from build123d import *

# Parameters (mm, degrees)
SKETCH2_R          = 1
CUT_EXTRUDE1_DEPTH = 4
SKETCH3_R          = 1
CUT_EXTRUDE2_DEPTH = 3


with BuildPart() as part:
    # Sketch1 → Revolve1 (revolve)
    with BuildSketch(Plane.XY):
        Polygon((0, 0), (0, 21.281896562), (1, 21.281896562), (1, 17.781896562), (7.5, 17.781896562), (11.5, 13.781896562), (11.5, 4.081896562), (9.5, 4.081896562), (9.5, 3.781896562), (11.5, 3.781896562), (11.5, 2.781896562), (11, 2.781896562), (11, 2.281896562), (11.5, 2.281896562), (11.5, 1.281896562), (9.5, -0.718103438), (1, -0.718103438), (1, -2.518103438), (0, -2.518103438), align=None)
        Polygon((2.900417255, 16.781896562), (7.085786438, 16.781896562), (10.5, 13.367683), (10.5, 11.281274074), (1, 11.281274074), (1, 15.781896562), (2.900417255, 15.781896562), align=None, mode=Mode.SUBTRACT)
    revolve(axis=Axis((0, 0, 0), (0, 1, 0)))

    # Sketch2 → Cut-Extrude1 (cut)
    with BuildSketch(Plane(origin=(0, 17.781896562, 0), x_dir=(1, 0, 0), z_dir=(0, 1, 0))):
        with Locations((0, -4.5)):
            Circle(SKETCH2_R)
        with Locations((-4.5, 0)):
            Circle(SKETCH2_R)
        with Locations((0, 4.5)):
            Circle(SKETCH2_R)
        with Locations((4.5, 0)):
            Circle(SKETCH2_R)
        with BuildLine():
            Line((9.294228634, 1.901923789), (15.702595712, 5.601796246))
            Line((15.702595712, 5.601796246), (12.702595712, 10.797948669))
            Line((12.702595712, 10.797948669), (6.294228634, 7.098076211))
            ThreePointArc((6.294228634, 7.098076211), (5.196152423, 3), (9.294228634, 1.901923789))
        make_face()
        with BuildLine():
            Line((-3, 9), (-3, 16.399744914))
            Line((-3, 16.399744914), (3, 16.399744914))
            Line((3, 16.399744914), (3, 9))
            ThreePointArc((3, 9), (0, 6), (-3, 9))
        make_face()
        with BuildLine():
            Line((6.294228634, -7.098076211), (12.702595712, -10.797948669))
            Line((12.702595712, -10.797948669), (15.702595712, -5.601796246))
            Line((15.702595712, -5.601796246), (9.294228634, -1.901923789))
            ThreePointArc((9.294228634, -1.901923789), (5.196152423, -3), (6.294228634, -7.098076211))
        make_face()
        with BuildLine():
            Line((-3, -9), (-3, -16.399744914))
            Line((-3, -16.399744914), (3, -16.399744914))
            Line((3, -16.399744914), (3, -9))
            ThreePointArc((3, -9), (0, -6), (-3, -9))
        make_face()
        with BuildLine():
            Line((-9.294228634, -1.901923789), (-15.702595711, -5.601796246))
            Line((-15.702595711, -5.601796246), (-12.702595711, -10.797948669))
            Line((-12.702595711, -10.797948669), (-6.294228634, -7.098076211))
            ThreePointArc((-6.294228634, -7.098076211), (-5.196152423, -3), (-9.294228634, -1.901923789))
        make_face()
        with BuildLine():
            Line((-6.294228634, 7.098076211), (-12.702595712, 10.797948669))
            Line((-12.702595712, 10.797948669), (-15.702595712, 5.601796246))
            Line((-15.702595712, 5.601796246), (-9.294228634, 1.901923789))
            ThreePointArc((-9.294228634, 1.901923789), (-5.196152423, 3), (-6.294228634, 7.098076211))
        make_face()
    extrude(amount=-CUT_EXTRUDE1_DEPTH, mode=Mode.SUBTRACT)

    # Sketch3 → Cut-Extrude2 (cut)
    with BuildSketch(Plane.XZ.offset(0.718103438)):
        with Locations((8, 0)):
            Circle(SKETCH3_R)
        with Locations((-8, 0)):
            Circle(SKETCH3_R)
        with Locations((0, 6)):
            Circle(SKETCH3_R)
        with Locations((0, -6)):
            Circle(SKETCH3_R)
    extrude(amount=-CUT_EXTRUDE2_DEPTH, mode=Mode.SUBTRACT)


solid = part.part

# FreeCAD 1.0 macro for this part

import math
import FreeCAD as App
import Part
import Sketcher

V = App.Vector
Q = App.Units.Quantity

doc = App.newDocument("Part")
params = doc.addObject("Spreadsheet::Sheet", "Params")
for row, (alias, value) in enumerate([
    ("sketch1_width", "1 mm"),
    ("sketch1_width2", "2 mm"),
    ("sketch1_width3", "8.5 mm"),
    ("sketch1_width4", "0.5 mm"),
    ("sketch1_width5", "6.5 mm"),
    ("revolution_angle", "360 deg"),
    ("sketch2_diameter", "2 mm"),
    ("sketch2_radius", "3 mm"),
    ("pocket1_length", "4 mm"),
    ("sketch3_diameter", "2 mm"),
    ("pocket2_length", "3 mm"),
], start=1):
    params.set(f"A{row}", alias)
    params.set(f"B{row}", "=" + value)
    params.setAlias(f"B{row}", alias)

body = doc.addObject("PartDesign::Body", "Body")

sketch1 = body.newObject("Sketcher::SketchObject", "Sketch")
sketch1.AttachmentSupport = (doc.getObject("XY_Plane"), [""])
sketch1.MapMode = "FlatFace"
sketch1.addGeometry(Part.LineSegment(V(0, 21.28, 0), V(0, -2.52, 0)), False)
sketch1.addGeometry(Part.LineSegment(V(0, -2.52, 0), V(1, -2.52, 0)), False)
sketch1.addGeometry(Part.LineSegment(V(1, -2.52, 0), V(1, -0.72, 0)), False)
sketch1.addGeometry(Part.LineSegment(V(1, -0.72, 0), V(9.5, -0.72, 0)), False)
sketch1.addGeometry(Part.LineSegment(V(9.5, -0.72, 0), V(11.5, 1.28, 0)), False)
sketch1.addGeometry(Part.LineSegment(V(11.5, 1.28, 0), V(11.5, 2.28, 0)), False)
sketch1.addGeometry(Part.LineSegment(V(11.5, 2.28, 0), V(11, 2.28, 0)), False)
sketch1.addGeometry(Part.LineSegment(V(11, 2.28, 0), V(11, 2.78, 0)), False)
sketch1.addGeometry(Part.LineSegment(V(11, 2.78, 0), V(11.5, 2.78, 0)), False)
sketch1.addGeometry(Part.LineSegment(V(11.5, 2.78, 0), V(11.5, 3.78, 0)), False)
sketch1.addGeometry(Part.LineSegment(V(11.5, 3.78, 0), V(9.5, 3.78, 0)), False)
sketch1.addGeometry(Part.LineSegment(V(9.5, 3.78, 0), V(9.5, 4.08, 0)), False)
sketch1.addGeometry(Part.LineSegment(V(9.5, 4.08, 0), V(11.5, 4.08, 0)), False)
sketch1.addGeometry(Part.LineSegment(V(11.5, 4.08, 0), V(11.5, 13.78, 0)), False)
sketch1.addGeometry(Part.LineSegment(V(11.5, 13.78, 0), V(7.5, 17.78, 0)), False)
sketch1.addGeometry(Part.LineSegment(V(7.5, 17.78, 0), V(1, 17.78, 0)), False)
sketch1.addGeometry(Part.LineSegment(V(1, 17.78, 0), V(1, 21.28, 0)), False)
sketch1.addGeometry(Part.LineSegment(V(1, 21.28, 0), V(0, 21.28, 0)), False)
sketch1.addGeometry(Part.LineSegment(V(2.9, 16.78, 0), V(7.09, 16.78, 0)), False)
sketch1.addGeometry(Part.LineSegment(V(7.09, 16.78, 0), V(10.5, 13.37, 0)), False)
sketch1.addGeometry(Part.LineSegment(V(10.5, 13.37, 0), V(10.5, 11.28, 0)), False)
sketch1.addGeometry(Part.LineSegment(V(10.5, 11.28, 0), V(1, 11.28, 0)), False)
sketch1.addGeometry(Part.LineSegment(V(1, 11.28, 0), V(1, 15.78, 0)), False)
sketch1.addGeometry(Part.LineSegment(V(1, 15.78, 0), V(2.9, 15.78, 0)), False)
sketch1.addGeometry(Part.LineSegment(V(2.9, 15.78, 0), V(2.9, 16.78, 0)), False)
sketch1.addConstraint(Sketcher.Constraint("Coincident", 0, 2, 1, 1))
sketch1.addConstraint(Sketcher.Constraint("Coincident", 1, 2, 2, 1))
sketch1.addConstraint(Sketcher.Constraint("Coincident", 2, 2, 3, 1))
sketch1.addConstraint(Sketcher.Constraint("Coincident", 3, 2, 4, 1))
sketch1.addConstraint(Sketcher.Constraint("Coincident", 4, 2, 5, 1))
sketch1.addConstraint(Sketcher.Constraint("Coincident", 5, 2, 6, 1))
sketch1.addConstraint(Sketcher.Constraint("Coincident", 6, 2, 7, 1))
sketch1.addConstraint(Sketcher.Constraint("Coincident", 7, 2, 8, 1))
sketch1.addConstraint(Sketcher.Constraint("Coincident", 8, 2, 9, 1))
sketch1.addConstraint(Sketcher.Constraint("Coincident", 9, 2, 10, 1))
sketch1.addConstraint(Sketcher.Constraint("Coincident", 10, 2, 11, 1))
sketch1.addConstraint(Sketcher.Constraint("Coincident", 11, 2, 12, 1))
sketch1.addConstraint(Sketcher.Constraint("Coincident", 12, 2, 13, 1))
sketch1.addConstraint(Sketcher.Constraint("Coincident", 13, 2, 14, 1))
sketch1.addConstraint(Sketcher.Constraint("Coincident", 14, 2, 15, 1))
sketch1.addConstraint(Sketcher.Constraint("Coincident", 15, 2, 16, 1))
sketch1.addConstraint(Sketcher.Constraint("Coincident", 16, 2, 17, 1))
sketch1.addConstraint(Sketcher.Constraint("Coincident", 17, 2, 0, 1))
sketch1.addConstraint(Sketcher.Constraint("Coincident", 18, 2, 19, 1))
sketch1.addConstraint(Sketcher.Constraint("Coincident", 19, 2, 20, 1))
sketch1.addConstraint(Sketcher.Constraint("Coincident", 20, 2, 21, 1))
sketch1.addConstraint(Sketcher.Constraint("Coincident", 21, 2, 22, 1))
sketch1.addConstraint(Sketcher.Constraint("Coincident", 22, 2, 23, 1))
sketch1.addConstraint(Sketcher.Constraint("Coincident", 23, 2, 24, 1))
sketch1.addConstraint(Sketcher.Constraint("Coincident", 24, 2, 18, 1))
sketch1.addConstraint(Sketcher.Constraint("Vertical", 0))
sketch1.addConstraint(Sketcher.Constraint("Horizontal", 1))
sketch1.addConstraint(Sketcher.Constraint("Vertical", 2))
sketch1.addConstraint(Sketcher.Constraint("Horizontal", 3))
sketch1.addConstraint(Sketcher.Constraint("Vertical", 5))
sketch1.addConstraint(Sketcher.Constraint("Horizontal", 6))
sketch1.addConstraint(Sketcher.Constraint("Vertical", 7))
sketch1.addConstraint(Sketcher.Constraint("Horizontal", 8))
sketch1.addConstraint(Sketcher.Constraint("Vertical", 9))
sketch1.addConstraint(Sketcher.Constraint("Horizontal", 10))
sketch1.addConstraint(Sketcher.Constraint("Vertical", 11))
sketch1.addConstraint(Sketcher.Constraint("Horizontal", 12))
sketch1.addConstraint(Sketcher.Constraint("Vertical", 13))
sketch1.addConstraint(Sketcher.Constraint("Horizontal", 15))
sketch1.addConstraint(Sketcher.Constraint("Vertical", 16))
sketch1.addConstraint(Sketcher.Constraint("Horizontal", 17))
sketch1.addConstraint(Sketcher.Constraint("Horizontal", 18))
sketch1.addConstraint(Sketcher.Constraint("Vertical", 20))
sketch1.addConstraint(Sketcher.Constraint("Horizontal", 21))
sketch1.addConstraint(Sketcher.Constraint("Vertical", 22))
sketch1.addConstraint(Sketcher.Constraint("Horizontal", 23))
sketch1.addConstraint(Sketcher.Constraint("Vertical", 24))
sketch1.addConstraint(Sketcher.Constraint("PointOnObject", 0, 2, -2))
sketch1.addConstraint(Sketcher.Constraint("Perpendicular", 4, 14))
sketch1.addConstraint(Sketcher.Constraint("Parallel", 14, 19))
sketch1.addConstraint(Sketcher.Constraint("Vertical", 5, 2, 8, 2))
sketch1.addConstraint(Sketcher.Constraint("Vertical", 3, 2, 10, 2))
sketch1.addConstraint(Sketcher.Constraint("Vertical", 9, 2, 12, 2))
sketch1.addConstraint(Sketcher.Constraint("Vertical", 2, 2, 15, 2))
sketch1.addConstraint(Sketcher.Constraint("Vertical", 16, 2, 21, 2))
sketch1.addConstraint(Sketcher.Constraint("Equal", 17, 5))
sketch1.addConstraint(Sketcher.Constraint("Equal", 8, 7))
sketch1.addConstraint(Sketcher.Constraint("Equal", 5, 9))
sketch1.addConstraint(Sketcher.Constraint("Equal", 9, 24))
sketch1.addConstraint(Sketcher.Constraint("DistanceX", 1, 1, 1, 2, 1.0))
sketch1.addConstraint(Sketcher.Constraint("DistanceX", 10, 2, 10, 1, 2.0))
sketch1.addConstraint(Sketcher.Constraint("Angle", 4, Q("45 deg")))
sketch1.addConstraint(Sketcher.Constraint("DistanceX", 3, 1, 3, 2, 8.5))
sketch1.addConstraint(Sketcher.Constraint("DistanceX", 6, 2, 6, 1, 0.5))
sketch1.addConstraint(Sketcher.Constraint("DistanceX", 15, 2, 15, 1, 6.5))
sketch1.addConstraint(Sketcher.Constraint("DistanceX", 21, 2, 21, 1, 9.5))
sketch1.addConstraint(Sketcher.Constraint("DistanceY", 0, 2, 0, 1, 23.8))
sketch1.addConstraint(Sketcher.Constraint("DistanceY", 2, 1, 2, 2, 1.8))
sketch1.addConstraint(Sketcher.Constraint("DistanceY", 11, 1, 11, 2, 0.3))
sketch1.addConstraint(Sketcher.Constraint("DistanceY", 13, 1, 13, 2, 9.7))
sketch1.addConstraint(Sketcher.Constraint("DistanceY", 18, 2, 14, 2, 1.0))
sketch1.addConstraint(Sketcher.Constraint("DistanceX", 18, 1, 18, 2, 4.185369))
sketch1.addConstraint(Sketcher.Constraint("DistanceY", 20, 2, 20, 1, 2.086409))
sketch1.addConstraint(Sketcher.Constraint("DistanceX", 23, 1, 23, 2, 1.900417))
sketch1.addConstraint(Sketcher.Constraint("DistanceY", 0, 2, -1, 1, 2.518103))
sketch1.setExpression("Constraints[59]", "Params.sketch1_width")
sketch1.setExpression("Constraints[60]", "Params.sketch1_width2")
sketch1.setExpression("Constraints[62]", "Params.sketch1_width3")
sketch1.setExpression("Constraints[63]", "Params.sketch1_width4")
sketch1.setExpression("Constraints[64]", "Params.sketch1_width5")
revolution = body.newObject("PartDesign::Revolution", "Revolution")
revolution.Profile = sketch1
revolution.ReferenceAxis = (sketch1, ["V_Axis"])
revolution.setExpression("Angle", "Params.revolution_angle")

sketch2 = body.newObject("Sketcher::SketchObject", "Sketch001")
sketch2.AttachmentSupport = (doc.getObject("XZ_Plane"), [""])
sketch2.MapMode = "FlatFace"
sketch2.AttachmentOffset = App.Placement(V(0, 0, -17.781897), App.Rotation())
sketch2.addGeometry(Part.Circle(V(0, 4.5, 0), V(0, 0, 1), 1), False)
sketch2.addGeometry(Part.Circle(V(-4.5, 0, 0), V(0, 0, 1), 1), False)
sketch2.addGeometry(Part.Circle(V(0, -4.5, 0), V(0, 0, 1), 1), False)
sketch2.addGeometry(Part.Circle(V(4.5, 0, 0), V(0, 0, 1), 1), False)
sketch2.addGeometry(Part.LineSegment(V(9.3, -1.9, 0), V(15.7, -5.6, 0)), False)
sketch2.addGeometry(Part.LineSegment(V(15.7, -5.6, 0), V(12.7, -10.8, 0)), False)
sketch2.addGeometry(Part.LineSegment(V(12.7, -10.8, 0), V(6.3, -7.1, 0)), False)
sketch2.addGeometry(Part.ArcOfCircle(Part.Circle(V(7.8, -4.5, 0), V(0, 0, 1), 3), math.radians(60), math.radians(240)), False)
sketch2.addGeometry(Part.LineSegment(V(-3, -16.4, 0), V(-3, -9, 0)), False)
sketch2.addGeometry(Part.ArcOfCircle(Part.Circle(V(0, -9, 0), V(0, 0, 1), 3), math.radians(0), math.radians(180)), False)
sketch2.addGeometry(Part.LineSegment(V(3, -9, 0), V(3, -16.4, 0)), False)
sketch2.addGeometry(Part.LineSegment(V(3, -16.4, 0), V(-3, -16.4, 0)), False)
sketch2.addGeometry(Part.LineSegment(V(6.3, 7.1, 0), V(12.7, 10.8, 0)), False)
sketch2.addGeometry(Part.LineSegment(V(12.7, 10.8, 0), V(15.7, 5.6, 0)), False)
sketch2.addGeometry(Part.LineSegment(V(15.7, 5.6, 0), V(9.3, 1.9, 0)), False)
sketch2.addGeometry(Part.ArcOfCircle(Part.Circle(V(7.8, 4.5, 0), V(0, 0, 1), 3), math.radians(120), math.radians(300)), False)
sketch2.addGeometry(Part.LineSegment(V(-3, 9, 0), V(-3, 16.4, 0)), False)
sketch2.addGeometry(Part.LineSegment(V(-3, 16.4, 0), V(3, 16.4, 0)), False)
sketch2.addGeometry(Part.LineSegment(V(3, 16.4, 0), V(3, 9, 0)), False)
sketch2.addGeometry(Part.ArcOfCircle(Part.Circle(V(0, 9, 0), V(0, 0, 1), 3), math.radians(180), math.radians(360)), False)
sketch2.addGeometry(Part.LineSegment(V(-9.3, 1.9, 0), V(-15.7, 5.6, 0)), False)
sketch2.addGeometry(Part.LineSegment(V(-15.7, 5.6, 0), V(-12.7, 10.8, 0)), False)
sketch2.addGeometry(Part.LineSegment(V(-12.7, 10.8, 0), V(-6.3, 7.1, 0)), False)
sketch2.addGeometry(Part.ArcOfCircle(Part.Circle(V(-7.8, 4.5, 0), V(0, 0, 1), 3), math.radians(-120), math.radians(60)), False)
sketch2.addGeometry(Part.LineSegment(V(-6.3, -7.1, 0), V(-12.7, -10.8, 0)), False)
sketch2.addGeometry(Part.LineSegment(V(-12.7, -10.8, 0), V(-15.7, -5.6, 0)), False)
sketch2.addGeometry(Part.LineSegment(V(-15.7, -5.6, 0), V(-9.3, -1.9, 0)), False)
sketch2.addGeometry(Part.ArcOfCircle(Part.Circle(V(-7.8, -4.5, 0), V(0, 0, 1), 3), math.radians(-60), math.radians(120)), False)
sketch2.addConstraint(Sketcher.Constraint("Coincident", 4, 2, 5, 1))
sketch2.addConstraint(Sketcher.Constraint("Coincident", 5, 2, 6, 1))
sketch2.addConstraint(Sketcher.Constraint("Tangent", 6, 2, 7, 2))
sketch2.addConstraint(Sketcher.Constraint("Tangent", 7, 1, 4, 1))
sketch2.addConstraint(Sketcher.Constraint("Tangent", 8, 2, 9, 2))
sketch2.addConstraint(Sketcher.Constraint("Tangent", 9, 1, 10, 1))
sketch2.addConstraint(Sketcher.Constraint("Coincident", 10, 2, 11, 1))
sketch2.addConstraint(Sketcher.Constraint("Coincident", 11, 2, 8, 1))
sketch2.addConstraint(Sketcher.Constraint("Coincident", 12, 2, 13, 1))
sketch2.addConstraint(Sketcher.Constraint("Coincident", 13, 2, 14, 1))
sketch2.addConstraint(Sketcher.Constraint("Tangent", 14, 2, 15, 2))
sketch2.addConstraint(Sketcher.Constraint("Tangent", 15, 1, 12, 1))
sketch2.addConstraint(Sketcher.Constraint("Coincident", 16, 2, 17, 1))
sketch2.addConstraint(Sketcher.Constraint("Coincident", 17, 2, 18, 1))
sketch2.addConstraint(Sketcher.Constraint("Tangent", 18, 2, 19, 2))
sketch2.addConstraint(Sketcher.Constraint("Tangent", 19, 1, 16, 1))
sketch2.addConstraint(Sketcher.Constraint("Coincident", 20, 2, 21, 1))
sketch2.addConstraint(Sketcher.Constraint("Coincident", 21, 2, 22, 1))
sketch2.addConstraint(Sketcher.Constraint("Tangent", 22, 2, 23, 2))
sketch2.addConstraint(Sketcher.Constraint("Tangent", 23, 1, 20, 1))
sketch2.addConstraint(Sketcher.Constraint("Coincident", 24, 2, 25, 1))
sketch2.addConstraint(Sketcher.Constraint("Coincident", 25, 2, 26, 1))
sketch2.addConstraint(Sketcher.Constraint("Tangent", 26, 2, 27, 2))
sketch2.addConstraint(Sketcher.Constraint("Tangent", 27, 1, 24, 1))
sketch2.addConstraint(Sketcher.Constraint("Vertical", 8))
sketch2.addConstraint(Sketcher.Constraint("Vertical", 10))
sketch2.addConstraint(Sketcher.Constraint("Horizontal", 11))
sketch2.addConstraint(Sketcher.Constraint("Vertical", 16))
sketch2.addConstraint(Sketcher.Constraint("Horizontal", 17))
sketch2.addConstraint(Sketcher.Constraint("Vertical", 18))
sketch2.addConstraint(Sketcher.Constraint("Equal", 0, 1))
sketch2.addConstraint(Sketcher.Constraint("Equal", 1, 2))
sketch2.addConstraint(Sketcher.Constraint("Equal", 2, 3))
sketch2.addConstraint(Sketcher.Constraint("Equal", 7, 9))
sketch2.addConstraint(Sketcher.Constraint("Equal", 9, 15))
sketch2.addConstraint(Sketcher.Constraint("Equal", 15, 19))
sketch2.addConstraint(Sketcher.Constraint("Equal", 19, 23))
sketch2.addConstraint(Sketcher.Constraint("Equal", 23, 27))
sketch2.addConstraint(Sketcher.Constraint("Symmetric", 0, 3, 2, 3, -1, 1))
sketch2.addConstraint(Sketcher.Constraint("Symmetric", 1, 3, 3, 3, -1, 1))
sketch2.addConstraint(Sketcher.Constraint("Symmetric", 9, 3, 19, 3, -1, 1))
sketch2.addConstraint(Sketcher.Constraint("Symmetric", 7, 3, 23, 3, -1, 1))
sketch2.addConstraint(Sketcher.Constraint("Symmetric", 15, 3, 27, 3, -1, 1))
sketch2.addConstraint(Sketcher.Constraint("Symmetric", 4, 2, 20, 2, -1, 1))
sketch2.addConstraint(Sketcher.Constraint("Symmetric", 5, 2, 21, 2, -1, 1))
sketch2.addConstraint(Sketcher.Constraint("Symmetric", 12, 2, 24, 2, -1, 1))
sketch2.addConstraint(Sketcher.Constraint("Symmetric", 13, 2, 25, 2, -1, 1))
sketch2.addConstraint(Sketcher.Constraint("Symmetric", 15, 3, 23, 3, -2))
sketch2.addConstraint(Sketcher.Constraint("Symmetric", 13, 2, 20, 2, -2))
sketch2.addConstraint(Sketcher.Constraint("Symmetric", 12, 2, 21, 2, -2))
sketch2.addConstraint(Sketcher.Constraint("Symmetric", 11, 2, 16, 2, -1))
sketch2.addConstraint(Sketcher.Constraint("PointOnObject", 0, 3, -2))
sketch2.addConstraint(Sketcher.Constraint("PointOnObject", 1, 3, -1))
sketch2.addConstraint(Sketcher.Constraint("Perpendicular", 4, 5))
sketch2.addConstraint(Sketcher.Constraint("Perpendicular", 5, 6))
sketch2.addConstraint(Sketcher.Constraint("Horizontal", 2, 3, 7, 3))
sketch2.addConstraint(Sketcher.Constraint("Diameter", 0, 2.0))
sketch2.addConstraint(Sketcher.Constraint("Radius", 7, 3.0))
sketch2.addConstraint(Sketcher.Constraint("Angle", 4, Q("-30 deg")))
sketch2.addConstraint(Sketcher.Constraint("DistanceY", 9, 3, -1, 1, 9.0))
sketch2.addConstraint(Sketcher.Constraint("DistanceY", 2, 3, 0, 3, 9.0))
sketch2.addConstraint(Sketcher.Constraint("DistanceX", 1, 3, 3, 3, 9.0))
sketch2.addConstraint(Sketcher.Constraint("DistanceY", 8, 1, 8, 2, 7.399745))
sketch2.addConstraint(Sketcher.Constraint("DistanceX", -1, 1, 7, 3, 7.794229))
sketch2.addConstraint(Sketcher.Constraint("DistanceY", 5, 2, -1, 1, 10.797949))
sketch2.setExpression("Constraints[56]", "Params.sketch2_diameter")
sketch2.setExpression("Constraints[57]", "Params.sketch2_radius")
pocket1 = body.newObject("PartDesign::Pocket", "Pocket")
pocket1.Profile = sketch2
pocket1.setExpression("Length", "Params.pocket1_length")
pocket1.Reversed = True

sketch3 = body.newObject("Sketcher::SketchObject", "Sketch002")
sketch3.AttachmentSupport = (doc.getObject("XZ_Plane"), [""])
sketch3.MapMode = "FlatFace"
sketch3.AttachmentOffset = App.Placement(V(0, 0, 0.718103), App.Rotation())
sketch3.addGeometry(Part.Circle(V(8, 0, 0), V(0, 0, 1), 1), False)
sketch3.addGeometry(Part.Circle(V(-8, 0, 0), V(0, 0, 1), 1), False)
sketch3.addGeometry(Part.Circle(V(0, 6, 0), V(0, 0, 1), 1), False)
sketch3.addGeometry(Part.Circle(V(0, -6, 0), V(0, 0, 1), 1), False)
sketch3.addConstraint(Sketcher.Constraint("Equal", 0, 1))
sketch3.addConstraint(Sketcher.Constraint("Equal", 1, 2))
sketch3.addConstraint(Sketcher.Constraint("Equal", 2, 3))
sketch3.addConstraint(Sketcher.Constraint("Symmetric", 0, 3, 1, 3, -1, 1))
sketch3.addConstraint(Sketcher.Constraint("Symmetric", 2, 3, 3, 3, -1, 1))
sketch3.addConstraint(Sketcher.Constraint("PointOnObject", 0, 3, -1))
sketch3.addConstraint(Sketcher.Constraint("PointOnObject", 2, 3, -2))
sketch3.addConstraint(Sketcher.Constraint("Diameter", 0, 2.0))
sketch3.addConstraint(Sketcher.Constraint("DistanceX", -1, 1, 0, 3, 8.0))
sketch3.addConstraint(Sketcher.Constraint("DistanceY", -1, 1, 2, 3, 6.0))
sketch3.setExpression("Constraints[7]", "Params.sketch3_diameter")
pocket2 = body.newObject("PartDesign::Pocket", "Pocket001")
pocket2.Profile = sketch3
pocket2.setExpression("Length", "Params.pocket2_length")

doc.recompute()
